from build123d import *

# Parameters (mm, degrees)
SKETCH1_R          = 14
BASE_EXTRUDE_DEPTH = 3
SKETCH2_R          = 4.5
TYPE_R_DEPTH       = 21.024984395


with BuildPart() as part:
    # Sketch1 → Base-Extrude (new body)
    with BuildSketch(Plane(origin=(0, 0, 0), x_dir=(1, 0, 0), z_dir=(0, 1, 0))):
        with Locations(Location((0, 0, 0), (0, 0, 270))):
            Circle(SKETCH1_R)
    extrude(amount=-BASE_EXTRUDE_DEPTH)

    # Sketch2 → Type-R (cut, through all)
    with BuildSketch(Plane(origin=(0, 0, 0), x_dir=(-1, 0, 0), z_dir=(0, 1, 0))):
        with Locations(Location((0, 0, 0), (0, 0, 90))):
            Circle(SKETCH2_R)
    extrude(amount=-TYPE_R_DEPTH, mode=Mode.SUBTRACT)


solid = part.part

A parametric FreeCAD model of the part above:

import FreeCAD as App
import Part
import Sketcher

doc = App.newDocument("Part")
body = doc.addObject("PartDesign::Body", "Body")

sketch1 = doc.addObject("Sketcher::SketchObject", "Sketch")
body.addObject(sketch1)
sketch1.AttachmentSupport = (doc.XZ_Plane, [""])
sketch1.MapMode = "FlatFace"
sketch1.addGeometry(Part.Circle(App.Vector(0, 0, 0), App.Vector(0, 0, 1), 14), False)
sketch1.addConstraint([
    Sketcher.Constraint("Coincident", 0, 3, -1, 1),
    Sketcher.Constraint("Diameter", 0, 28.0),
])
pad1 = doc.addObject("PartDesign::Pad", "Pad")
body.addObject(pad1)
pad1.Profile = sketch1
pad1.Length = 3

sketch2 = doc.addObject("Sketcher::SketchObject", "Sketch001")
body.addObject(sketch2)
sketch2.AttachmentSupport = (doc.XZ_Plane, [""])
sketch2.MapMode = "FlatFace"
sketch2.addGeometry(Part.Circle(App.Vector(0, 0, 0), App.Vector(0, 0, 1), 4.5), False)
sketch2.addConstraint([
    Sketcher.Constraint("Coincident", 0, 3, -1, 1),
    Sketcher.Constraint("Diameter", 0, 9.0),
])
pocket1 = doc.addObject("PartDesign::Pocket", "Pocket")
body.addObject(pocket1)
pocket1.Profile = sketch2
pocket1.Type = "ThroughAll"
pocket1.Reversed = True

doc.recompute()
